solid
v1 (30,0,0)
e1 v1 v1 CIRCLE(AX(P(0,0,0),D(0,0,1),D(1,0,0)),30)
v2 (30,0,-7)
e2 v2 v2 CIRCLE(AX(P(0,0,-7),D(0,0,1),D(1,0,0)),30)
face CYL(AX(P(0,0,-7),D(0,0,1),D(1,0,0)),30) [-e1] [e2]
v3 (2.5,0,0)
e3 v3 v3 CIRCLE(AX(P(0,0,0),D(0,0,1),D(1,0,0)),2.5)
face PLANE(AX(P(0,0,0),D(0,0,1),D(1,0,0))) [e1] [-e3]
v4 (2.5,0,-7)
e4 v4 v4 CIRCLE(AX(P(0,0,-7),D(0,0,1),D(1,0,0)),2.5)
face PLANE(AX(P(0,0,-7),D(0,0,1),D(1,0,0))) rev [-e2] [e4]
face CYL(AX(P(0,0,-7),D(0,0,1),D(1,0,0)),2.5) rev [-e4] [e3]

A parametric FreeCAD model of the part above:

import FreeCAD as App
import Part
import Sketcher
from FreeCAD import Vector

doc = App.newDocument("Part")
body = doc.addObject("PartDesign::Body", "Body")

sketch1 = body.newObject("Sketcher::SketchObject", "Sketch")
sketch1.AttachmentSupport = (doc.getObject("XY_Plane"), [""])
sketch1.MapMode = "FlatFace"
sketch1.addGeometry([
    Part.Circle(Vector(0, 0, 0), Vector(0, 0, 1), 30),
    Part.Circle(Vector(0, 0, 0), Vector(0, 0, 1), 2.5),
], False)
sketch1.addConstraint([
    Sketcher.Constraint("Coincident", 0, 3, -1, 1),
    Sketcher.Constraint("Coincident", 1, 3, -1, 1),
    Sketcher.Constraint("Diameter", 0, 60.0),
    Sketcher.Constraint("Diameter", 1, 5.0),
])
pad1 = body.newObject("PartDesign::Pad", "Pad")
pad1.Profile = sketch1
pad1.Length = 7
pad1.Reversed = True

doc.recompute()
